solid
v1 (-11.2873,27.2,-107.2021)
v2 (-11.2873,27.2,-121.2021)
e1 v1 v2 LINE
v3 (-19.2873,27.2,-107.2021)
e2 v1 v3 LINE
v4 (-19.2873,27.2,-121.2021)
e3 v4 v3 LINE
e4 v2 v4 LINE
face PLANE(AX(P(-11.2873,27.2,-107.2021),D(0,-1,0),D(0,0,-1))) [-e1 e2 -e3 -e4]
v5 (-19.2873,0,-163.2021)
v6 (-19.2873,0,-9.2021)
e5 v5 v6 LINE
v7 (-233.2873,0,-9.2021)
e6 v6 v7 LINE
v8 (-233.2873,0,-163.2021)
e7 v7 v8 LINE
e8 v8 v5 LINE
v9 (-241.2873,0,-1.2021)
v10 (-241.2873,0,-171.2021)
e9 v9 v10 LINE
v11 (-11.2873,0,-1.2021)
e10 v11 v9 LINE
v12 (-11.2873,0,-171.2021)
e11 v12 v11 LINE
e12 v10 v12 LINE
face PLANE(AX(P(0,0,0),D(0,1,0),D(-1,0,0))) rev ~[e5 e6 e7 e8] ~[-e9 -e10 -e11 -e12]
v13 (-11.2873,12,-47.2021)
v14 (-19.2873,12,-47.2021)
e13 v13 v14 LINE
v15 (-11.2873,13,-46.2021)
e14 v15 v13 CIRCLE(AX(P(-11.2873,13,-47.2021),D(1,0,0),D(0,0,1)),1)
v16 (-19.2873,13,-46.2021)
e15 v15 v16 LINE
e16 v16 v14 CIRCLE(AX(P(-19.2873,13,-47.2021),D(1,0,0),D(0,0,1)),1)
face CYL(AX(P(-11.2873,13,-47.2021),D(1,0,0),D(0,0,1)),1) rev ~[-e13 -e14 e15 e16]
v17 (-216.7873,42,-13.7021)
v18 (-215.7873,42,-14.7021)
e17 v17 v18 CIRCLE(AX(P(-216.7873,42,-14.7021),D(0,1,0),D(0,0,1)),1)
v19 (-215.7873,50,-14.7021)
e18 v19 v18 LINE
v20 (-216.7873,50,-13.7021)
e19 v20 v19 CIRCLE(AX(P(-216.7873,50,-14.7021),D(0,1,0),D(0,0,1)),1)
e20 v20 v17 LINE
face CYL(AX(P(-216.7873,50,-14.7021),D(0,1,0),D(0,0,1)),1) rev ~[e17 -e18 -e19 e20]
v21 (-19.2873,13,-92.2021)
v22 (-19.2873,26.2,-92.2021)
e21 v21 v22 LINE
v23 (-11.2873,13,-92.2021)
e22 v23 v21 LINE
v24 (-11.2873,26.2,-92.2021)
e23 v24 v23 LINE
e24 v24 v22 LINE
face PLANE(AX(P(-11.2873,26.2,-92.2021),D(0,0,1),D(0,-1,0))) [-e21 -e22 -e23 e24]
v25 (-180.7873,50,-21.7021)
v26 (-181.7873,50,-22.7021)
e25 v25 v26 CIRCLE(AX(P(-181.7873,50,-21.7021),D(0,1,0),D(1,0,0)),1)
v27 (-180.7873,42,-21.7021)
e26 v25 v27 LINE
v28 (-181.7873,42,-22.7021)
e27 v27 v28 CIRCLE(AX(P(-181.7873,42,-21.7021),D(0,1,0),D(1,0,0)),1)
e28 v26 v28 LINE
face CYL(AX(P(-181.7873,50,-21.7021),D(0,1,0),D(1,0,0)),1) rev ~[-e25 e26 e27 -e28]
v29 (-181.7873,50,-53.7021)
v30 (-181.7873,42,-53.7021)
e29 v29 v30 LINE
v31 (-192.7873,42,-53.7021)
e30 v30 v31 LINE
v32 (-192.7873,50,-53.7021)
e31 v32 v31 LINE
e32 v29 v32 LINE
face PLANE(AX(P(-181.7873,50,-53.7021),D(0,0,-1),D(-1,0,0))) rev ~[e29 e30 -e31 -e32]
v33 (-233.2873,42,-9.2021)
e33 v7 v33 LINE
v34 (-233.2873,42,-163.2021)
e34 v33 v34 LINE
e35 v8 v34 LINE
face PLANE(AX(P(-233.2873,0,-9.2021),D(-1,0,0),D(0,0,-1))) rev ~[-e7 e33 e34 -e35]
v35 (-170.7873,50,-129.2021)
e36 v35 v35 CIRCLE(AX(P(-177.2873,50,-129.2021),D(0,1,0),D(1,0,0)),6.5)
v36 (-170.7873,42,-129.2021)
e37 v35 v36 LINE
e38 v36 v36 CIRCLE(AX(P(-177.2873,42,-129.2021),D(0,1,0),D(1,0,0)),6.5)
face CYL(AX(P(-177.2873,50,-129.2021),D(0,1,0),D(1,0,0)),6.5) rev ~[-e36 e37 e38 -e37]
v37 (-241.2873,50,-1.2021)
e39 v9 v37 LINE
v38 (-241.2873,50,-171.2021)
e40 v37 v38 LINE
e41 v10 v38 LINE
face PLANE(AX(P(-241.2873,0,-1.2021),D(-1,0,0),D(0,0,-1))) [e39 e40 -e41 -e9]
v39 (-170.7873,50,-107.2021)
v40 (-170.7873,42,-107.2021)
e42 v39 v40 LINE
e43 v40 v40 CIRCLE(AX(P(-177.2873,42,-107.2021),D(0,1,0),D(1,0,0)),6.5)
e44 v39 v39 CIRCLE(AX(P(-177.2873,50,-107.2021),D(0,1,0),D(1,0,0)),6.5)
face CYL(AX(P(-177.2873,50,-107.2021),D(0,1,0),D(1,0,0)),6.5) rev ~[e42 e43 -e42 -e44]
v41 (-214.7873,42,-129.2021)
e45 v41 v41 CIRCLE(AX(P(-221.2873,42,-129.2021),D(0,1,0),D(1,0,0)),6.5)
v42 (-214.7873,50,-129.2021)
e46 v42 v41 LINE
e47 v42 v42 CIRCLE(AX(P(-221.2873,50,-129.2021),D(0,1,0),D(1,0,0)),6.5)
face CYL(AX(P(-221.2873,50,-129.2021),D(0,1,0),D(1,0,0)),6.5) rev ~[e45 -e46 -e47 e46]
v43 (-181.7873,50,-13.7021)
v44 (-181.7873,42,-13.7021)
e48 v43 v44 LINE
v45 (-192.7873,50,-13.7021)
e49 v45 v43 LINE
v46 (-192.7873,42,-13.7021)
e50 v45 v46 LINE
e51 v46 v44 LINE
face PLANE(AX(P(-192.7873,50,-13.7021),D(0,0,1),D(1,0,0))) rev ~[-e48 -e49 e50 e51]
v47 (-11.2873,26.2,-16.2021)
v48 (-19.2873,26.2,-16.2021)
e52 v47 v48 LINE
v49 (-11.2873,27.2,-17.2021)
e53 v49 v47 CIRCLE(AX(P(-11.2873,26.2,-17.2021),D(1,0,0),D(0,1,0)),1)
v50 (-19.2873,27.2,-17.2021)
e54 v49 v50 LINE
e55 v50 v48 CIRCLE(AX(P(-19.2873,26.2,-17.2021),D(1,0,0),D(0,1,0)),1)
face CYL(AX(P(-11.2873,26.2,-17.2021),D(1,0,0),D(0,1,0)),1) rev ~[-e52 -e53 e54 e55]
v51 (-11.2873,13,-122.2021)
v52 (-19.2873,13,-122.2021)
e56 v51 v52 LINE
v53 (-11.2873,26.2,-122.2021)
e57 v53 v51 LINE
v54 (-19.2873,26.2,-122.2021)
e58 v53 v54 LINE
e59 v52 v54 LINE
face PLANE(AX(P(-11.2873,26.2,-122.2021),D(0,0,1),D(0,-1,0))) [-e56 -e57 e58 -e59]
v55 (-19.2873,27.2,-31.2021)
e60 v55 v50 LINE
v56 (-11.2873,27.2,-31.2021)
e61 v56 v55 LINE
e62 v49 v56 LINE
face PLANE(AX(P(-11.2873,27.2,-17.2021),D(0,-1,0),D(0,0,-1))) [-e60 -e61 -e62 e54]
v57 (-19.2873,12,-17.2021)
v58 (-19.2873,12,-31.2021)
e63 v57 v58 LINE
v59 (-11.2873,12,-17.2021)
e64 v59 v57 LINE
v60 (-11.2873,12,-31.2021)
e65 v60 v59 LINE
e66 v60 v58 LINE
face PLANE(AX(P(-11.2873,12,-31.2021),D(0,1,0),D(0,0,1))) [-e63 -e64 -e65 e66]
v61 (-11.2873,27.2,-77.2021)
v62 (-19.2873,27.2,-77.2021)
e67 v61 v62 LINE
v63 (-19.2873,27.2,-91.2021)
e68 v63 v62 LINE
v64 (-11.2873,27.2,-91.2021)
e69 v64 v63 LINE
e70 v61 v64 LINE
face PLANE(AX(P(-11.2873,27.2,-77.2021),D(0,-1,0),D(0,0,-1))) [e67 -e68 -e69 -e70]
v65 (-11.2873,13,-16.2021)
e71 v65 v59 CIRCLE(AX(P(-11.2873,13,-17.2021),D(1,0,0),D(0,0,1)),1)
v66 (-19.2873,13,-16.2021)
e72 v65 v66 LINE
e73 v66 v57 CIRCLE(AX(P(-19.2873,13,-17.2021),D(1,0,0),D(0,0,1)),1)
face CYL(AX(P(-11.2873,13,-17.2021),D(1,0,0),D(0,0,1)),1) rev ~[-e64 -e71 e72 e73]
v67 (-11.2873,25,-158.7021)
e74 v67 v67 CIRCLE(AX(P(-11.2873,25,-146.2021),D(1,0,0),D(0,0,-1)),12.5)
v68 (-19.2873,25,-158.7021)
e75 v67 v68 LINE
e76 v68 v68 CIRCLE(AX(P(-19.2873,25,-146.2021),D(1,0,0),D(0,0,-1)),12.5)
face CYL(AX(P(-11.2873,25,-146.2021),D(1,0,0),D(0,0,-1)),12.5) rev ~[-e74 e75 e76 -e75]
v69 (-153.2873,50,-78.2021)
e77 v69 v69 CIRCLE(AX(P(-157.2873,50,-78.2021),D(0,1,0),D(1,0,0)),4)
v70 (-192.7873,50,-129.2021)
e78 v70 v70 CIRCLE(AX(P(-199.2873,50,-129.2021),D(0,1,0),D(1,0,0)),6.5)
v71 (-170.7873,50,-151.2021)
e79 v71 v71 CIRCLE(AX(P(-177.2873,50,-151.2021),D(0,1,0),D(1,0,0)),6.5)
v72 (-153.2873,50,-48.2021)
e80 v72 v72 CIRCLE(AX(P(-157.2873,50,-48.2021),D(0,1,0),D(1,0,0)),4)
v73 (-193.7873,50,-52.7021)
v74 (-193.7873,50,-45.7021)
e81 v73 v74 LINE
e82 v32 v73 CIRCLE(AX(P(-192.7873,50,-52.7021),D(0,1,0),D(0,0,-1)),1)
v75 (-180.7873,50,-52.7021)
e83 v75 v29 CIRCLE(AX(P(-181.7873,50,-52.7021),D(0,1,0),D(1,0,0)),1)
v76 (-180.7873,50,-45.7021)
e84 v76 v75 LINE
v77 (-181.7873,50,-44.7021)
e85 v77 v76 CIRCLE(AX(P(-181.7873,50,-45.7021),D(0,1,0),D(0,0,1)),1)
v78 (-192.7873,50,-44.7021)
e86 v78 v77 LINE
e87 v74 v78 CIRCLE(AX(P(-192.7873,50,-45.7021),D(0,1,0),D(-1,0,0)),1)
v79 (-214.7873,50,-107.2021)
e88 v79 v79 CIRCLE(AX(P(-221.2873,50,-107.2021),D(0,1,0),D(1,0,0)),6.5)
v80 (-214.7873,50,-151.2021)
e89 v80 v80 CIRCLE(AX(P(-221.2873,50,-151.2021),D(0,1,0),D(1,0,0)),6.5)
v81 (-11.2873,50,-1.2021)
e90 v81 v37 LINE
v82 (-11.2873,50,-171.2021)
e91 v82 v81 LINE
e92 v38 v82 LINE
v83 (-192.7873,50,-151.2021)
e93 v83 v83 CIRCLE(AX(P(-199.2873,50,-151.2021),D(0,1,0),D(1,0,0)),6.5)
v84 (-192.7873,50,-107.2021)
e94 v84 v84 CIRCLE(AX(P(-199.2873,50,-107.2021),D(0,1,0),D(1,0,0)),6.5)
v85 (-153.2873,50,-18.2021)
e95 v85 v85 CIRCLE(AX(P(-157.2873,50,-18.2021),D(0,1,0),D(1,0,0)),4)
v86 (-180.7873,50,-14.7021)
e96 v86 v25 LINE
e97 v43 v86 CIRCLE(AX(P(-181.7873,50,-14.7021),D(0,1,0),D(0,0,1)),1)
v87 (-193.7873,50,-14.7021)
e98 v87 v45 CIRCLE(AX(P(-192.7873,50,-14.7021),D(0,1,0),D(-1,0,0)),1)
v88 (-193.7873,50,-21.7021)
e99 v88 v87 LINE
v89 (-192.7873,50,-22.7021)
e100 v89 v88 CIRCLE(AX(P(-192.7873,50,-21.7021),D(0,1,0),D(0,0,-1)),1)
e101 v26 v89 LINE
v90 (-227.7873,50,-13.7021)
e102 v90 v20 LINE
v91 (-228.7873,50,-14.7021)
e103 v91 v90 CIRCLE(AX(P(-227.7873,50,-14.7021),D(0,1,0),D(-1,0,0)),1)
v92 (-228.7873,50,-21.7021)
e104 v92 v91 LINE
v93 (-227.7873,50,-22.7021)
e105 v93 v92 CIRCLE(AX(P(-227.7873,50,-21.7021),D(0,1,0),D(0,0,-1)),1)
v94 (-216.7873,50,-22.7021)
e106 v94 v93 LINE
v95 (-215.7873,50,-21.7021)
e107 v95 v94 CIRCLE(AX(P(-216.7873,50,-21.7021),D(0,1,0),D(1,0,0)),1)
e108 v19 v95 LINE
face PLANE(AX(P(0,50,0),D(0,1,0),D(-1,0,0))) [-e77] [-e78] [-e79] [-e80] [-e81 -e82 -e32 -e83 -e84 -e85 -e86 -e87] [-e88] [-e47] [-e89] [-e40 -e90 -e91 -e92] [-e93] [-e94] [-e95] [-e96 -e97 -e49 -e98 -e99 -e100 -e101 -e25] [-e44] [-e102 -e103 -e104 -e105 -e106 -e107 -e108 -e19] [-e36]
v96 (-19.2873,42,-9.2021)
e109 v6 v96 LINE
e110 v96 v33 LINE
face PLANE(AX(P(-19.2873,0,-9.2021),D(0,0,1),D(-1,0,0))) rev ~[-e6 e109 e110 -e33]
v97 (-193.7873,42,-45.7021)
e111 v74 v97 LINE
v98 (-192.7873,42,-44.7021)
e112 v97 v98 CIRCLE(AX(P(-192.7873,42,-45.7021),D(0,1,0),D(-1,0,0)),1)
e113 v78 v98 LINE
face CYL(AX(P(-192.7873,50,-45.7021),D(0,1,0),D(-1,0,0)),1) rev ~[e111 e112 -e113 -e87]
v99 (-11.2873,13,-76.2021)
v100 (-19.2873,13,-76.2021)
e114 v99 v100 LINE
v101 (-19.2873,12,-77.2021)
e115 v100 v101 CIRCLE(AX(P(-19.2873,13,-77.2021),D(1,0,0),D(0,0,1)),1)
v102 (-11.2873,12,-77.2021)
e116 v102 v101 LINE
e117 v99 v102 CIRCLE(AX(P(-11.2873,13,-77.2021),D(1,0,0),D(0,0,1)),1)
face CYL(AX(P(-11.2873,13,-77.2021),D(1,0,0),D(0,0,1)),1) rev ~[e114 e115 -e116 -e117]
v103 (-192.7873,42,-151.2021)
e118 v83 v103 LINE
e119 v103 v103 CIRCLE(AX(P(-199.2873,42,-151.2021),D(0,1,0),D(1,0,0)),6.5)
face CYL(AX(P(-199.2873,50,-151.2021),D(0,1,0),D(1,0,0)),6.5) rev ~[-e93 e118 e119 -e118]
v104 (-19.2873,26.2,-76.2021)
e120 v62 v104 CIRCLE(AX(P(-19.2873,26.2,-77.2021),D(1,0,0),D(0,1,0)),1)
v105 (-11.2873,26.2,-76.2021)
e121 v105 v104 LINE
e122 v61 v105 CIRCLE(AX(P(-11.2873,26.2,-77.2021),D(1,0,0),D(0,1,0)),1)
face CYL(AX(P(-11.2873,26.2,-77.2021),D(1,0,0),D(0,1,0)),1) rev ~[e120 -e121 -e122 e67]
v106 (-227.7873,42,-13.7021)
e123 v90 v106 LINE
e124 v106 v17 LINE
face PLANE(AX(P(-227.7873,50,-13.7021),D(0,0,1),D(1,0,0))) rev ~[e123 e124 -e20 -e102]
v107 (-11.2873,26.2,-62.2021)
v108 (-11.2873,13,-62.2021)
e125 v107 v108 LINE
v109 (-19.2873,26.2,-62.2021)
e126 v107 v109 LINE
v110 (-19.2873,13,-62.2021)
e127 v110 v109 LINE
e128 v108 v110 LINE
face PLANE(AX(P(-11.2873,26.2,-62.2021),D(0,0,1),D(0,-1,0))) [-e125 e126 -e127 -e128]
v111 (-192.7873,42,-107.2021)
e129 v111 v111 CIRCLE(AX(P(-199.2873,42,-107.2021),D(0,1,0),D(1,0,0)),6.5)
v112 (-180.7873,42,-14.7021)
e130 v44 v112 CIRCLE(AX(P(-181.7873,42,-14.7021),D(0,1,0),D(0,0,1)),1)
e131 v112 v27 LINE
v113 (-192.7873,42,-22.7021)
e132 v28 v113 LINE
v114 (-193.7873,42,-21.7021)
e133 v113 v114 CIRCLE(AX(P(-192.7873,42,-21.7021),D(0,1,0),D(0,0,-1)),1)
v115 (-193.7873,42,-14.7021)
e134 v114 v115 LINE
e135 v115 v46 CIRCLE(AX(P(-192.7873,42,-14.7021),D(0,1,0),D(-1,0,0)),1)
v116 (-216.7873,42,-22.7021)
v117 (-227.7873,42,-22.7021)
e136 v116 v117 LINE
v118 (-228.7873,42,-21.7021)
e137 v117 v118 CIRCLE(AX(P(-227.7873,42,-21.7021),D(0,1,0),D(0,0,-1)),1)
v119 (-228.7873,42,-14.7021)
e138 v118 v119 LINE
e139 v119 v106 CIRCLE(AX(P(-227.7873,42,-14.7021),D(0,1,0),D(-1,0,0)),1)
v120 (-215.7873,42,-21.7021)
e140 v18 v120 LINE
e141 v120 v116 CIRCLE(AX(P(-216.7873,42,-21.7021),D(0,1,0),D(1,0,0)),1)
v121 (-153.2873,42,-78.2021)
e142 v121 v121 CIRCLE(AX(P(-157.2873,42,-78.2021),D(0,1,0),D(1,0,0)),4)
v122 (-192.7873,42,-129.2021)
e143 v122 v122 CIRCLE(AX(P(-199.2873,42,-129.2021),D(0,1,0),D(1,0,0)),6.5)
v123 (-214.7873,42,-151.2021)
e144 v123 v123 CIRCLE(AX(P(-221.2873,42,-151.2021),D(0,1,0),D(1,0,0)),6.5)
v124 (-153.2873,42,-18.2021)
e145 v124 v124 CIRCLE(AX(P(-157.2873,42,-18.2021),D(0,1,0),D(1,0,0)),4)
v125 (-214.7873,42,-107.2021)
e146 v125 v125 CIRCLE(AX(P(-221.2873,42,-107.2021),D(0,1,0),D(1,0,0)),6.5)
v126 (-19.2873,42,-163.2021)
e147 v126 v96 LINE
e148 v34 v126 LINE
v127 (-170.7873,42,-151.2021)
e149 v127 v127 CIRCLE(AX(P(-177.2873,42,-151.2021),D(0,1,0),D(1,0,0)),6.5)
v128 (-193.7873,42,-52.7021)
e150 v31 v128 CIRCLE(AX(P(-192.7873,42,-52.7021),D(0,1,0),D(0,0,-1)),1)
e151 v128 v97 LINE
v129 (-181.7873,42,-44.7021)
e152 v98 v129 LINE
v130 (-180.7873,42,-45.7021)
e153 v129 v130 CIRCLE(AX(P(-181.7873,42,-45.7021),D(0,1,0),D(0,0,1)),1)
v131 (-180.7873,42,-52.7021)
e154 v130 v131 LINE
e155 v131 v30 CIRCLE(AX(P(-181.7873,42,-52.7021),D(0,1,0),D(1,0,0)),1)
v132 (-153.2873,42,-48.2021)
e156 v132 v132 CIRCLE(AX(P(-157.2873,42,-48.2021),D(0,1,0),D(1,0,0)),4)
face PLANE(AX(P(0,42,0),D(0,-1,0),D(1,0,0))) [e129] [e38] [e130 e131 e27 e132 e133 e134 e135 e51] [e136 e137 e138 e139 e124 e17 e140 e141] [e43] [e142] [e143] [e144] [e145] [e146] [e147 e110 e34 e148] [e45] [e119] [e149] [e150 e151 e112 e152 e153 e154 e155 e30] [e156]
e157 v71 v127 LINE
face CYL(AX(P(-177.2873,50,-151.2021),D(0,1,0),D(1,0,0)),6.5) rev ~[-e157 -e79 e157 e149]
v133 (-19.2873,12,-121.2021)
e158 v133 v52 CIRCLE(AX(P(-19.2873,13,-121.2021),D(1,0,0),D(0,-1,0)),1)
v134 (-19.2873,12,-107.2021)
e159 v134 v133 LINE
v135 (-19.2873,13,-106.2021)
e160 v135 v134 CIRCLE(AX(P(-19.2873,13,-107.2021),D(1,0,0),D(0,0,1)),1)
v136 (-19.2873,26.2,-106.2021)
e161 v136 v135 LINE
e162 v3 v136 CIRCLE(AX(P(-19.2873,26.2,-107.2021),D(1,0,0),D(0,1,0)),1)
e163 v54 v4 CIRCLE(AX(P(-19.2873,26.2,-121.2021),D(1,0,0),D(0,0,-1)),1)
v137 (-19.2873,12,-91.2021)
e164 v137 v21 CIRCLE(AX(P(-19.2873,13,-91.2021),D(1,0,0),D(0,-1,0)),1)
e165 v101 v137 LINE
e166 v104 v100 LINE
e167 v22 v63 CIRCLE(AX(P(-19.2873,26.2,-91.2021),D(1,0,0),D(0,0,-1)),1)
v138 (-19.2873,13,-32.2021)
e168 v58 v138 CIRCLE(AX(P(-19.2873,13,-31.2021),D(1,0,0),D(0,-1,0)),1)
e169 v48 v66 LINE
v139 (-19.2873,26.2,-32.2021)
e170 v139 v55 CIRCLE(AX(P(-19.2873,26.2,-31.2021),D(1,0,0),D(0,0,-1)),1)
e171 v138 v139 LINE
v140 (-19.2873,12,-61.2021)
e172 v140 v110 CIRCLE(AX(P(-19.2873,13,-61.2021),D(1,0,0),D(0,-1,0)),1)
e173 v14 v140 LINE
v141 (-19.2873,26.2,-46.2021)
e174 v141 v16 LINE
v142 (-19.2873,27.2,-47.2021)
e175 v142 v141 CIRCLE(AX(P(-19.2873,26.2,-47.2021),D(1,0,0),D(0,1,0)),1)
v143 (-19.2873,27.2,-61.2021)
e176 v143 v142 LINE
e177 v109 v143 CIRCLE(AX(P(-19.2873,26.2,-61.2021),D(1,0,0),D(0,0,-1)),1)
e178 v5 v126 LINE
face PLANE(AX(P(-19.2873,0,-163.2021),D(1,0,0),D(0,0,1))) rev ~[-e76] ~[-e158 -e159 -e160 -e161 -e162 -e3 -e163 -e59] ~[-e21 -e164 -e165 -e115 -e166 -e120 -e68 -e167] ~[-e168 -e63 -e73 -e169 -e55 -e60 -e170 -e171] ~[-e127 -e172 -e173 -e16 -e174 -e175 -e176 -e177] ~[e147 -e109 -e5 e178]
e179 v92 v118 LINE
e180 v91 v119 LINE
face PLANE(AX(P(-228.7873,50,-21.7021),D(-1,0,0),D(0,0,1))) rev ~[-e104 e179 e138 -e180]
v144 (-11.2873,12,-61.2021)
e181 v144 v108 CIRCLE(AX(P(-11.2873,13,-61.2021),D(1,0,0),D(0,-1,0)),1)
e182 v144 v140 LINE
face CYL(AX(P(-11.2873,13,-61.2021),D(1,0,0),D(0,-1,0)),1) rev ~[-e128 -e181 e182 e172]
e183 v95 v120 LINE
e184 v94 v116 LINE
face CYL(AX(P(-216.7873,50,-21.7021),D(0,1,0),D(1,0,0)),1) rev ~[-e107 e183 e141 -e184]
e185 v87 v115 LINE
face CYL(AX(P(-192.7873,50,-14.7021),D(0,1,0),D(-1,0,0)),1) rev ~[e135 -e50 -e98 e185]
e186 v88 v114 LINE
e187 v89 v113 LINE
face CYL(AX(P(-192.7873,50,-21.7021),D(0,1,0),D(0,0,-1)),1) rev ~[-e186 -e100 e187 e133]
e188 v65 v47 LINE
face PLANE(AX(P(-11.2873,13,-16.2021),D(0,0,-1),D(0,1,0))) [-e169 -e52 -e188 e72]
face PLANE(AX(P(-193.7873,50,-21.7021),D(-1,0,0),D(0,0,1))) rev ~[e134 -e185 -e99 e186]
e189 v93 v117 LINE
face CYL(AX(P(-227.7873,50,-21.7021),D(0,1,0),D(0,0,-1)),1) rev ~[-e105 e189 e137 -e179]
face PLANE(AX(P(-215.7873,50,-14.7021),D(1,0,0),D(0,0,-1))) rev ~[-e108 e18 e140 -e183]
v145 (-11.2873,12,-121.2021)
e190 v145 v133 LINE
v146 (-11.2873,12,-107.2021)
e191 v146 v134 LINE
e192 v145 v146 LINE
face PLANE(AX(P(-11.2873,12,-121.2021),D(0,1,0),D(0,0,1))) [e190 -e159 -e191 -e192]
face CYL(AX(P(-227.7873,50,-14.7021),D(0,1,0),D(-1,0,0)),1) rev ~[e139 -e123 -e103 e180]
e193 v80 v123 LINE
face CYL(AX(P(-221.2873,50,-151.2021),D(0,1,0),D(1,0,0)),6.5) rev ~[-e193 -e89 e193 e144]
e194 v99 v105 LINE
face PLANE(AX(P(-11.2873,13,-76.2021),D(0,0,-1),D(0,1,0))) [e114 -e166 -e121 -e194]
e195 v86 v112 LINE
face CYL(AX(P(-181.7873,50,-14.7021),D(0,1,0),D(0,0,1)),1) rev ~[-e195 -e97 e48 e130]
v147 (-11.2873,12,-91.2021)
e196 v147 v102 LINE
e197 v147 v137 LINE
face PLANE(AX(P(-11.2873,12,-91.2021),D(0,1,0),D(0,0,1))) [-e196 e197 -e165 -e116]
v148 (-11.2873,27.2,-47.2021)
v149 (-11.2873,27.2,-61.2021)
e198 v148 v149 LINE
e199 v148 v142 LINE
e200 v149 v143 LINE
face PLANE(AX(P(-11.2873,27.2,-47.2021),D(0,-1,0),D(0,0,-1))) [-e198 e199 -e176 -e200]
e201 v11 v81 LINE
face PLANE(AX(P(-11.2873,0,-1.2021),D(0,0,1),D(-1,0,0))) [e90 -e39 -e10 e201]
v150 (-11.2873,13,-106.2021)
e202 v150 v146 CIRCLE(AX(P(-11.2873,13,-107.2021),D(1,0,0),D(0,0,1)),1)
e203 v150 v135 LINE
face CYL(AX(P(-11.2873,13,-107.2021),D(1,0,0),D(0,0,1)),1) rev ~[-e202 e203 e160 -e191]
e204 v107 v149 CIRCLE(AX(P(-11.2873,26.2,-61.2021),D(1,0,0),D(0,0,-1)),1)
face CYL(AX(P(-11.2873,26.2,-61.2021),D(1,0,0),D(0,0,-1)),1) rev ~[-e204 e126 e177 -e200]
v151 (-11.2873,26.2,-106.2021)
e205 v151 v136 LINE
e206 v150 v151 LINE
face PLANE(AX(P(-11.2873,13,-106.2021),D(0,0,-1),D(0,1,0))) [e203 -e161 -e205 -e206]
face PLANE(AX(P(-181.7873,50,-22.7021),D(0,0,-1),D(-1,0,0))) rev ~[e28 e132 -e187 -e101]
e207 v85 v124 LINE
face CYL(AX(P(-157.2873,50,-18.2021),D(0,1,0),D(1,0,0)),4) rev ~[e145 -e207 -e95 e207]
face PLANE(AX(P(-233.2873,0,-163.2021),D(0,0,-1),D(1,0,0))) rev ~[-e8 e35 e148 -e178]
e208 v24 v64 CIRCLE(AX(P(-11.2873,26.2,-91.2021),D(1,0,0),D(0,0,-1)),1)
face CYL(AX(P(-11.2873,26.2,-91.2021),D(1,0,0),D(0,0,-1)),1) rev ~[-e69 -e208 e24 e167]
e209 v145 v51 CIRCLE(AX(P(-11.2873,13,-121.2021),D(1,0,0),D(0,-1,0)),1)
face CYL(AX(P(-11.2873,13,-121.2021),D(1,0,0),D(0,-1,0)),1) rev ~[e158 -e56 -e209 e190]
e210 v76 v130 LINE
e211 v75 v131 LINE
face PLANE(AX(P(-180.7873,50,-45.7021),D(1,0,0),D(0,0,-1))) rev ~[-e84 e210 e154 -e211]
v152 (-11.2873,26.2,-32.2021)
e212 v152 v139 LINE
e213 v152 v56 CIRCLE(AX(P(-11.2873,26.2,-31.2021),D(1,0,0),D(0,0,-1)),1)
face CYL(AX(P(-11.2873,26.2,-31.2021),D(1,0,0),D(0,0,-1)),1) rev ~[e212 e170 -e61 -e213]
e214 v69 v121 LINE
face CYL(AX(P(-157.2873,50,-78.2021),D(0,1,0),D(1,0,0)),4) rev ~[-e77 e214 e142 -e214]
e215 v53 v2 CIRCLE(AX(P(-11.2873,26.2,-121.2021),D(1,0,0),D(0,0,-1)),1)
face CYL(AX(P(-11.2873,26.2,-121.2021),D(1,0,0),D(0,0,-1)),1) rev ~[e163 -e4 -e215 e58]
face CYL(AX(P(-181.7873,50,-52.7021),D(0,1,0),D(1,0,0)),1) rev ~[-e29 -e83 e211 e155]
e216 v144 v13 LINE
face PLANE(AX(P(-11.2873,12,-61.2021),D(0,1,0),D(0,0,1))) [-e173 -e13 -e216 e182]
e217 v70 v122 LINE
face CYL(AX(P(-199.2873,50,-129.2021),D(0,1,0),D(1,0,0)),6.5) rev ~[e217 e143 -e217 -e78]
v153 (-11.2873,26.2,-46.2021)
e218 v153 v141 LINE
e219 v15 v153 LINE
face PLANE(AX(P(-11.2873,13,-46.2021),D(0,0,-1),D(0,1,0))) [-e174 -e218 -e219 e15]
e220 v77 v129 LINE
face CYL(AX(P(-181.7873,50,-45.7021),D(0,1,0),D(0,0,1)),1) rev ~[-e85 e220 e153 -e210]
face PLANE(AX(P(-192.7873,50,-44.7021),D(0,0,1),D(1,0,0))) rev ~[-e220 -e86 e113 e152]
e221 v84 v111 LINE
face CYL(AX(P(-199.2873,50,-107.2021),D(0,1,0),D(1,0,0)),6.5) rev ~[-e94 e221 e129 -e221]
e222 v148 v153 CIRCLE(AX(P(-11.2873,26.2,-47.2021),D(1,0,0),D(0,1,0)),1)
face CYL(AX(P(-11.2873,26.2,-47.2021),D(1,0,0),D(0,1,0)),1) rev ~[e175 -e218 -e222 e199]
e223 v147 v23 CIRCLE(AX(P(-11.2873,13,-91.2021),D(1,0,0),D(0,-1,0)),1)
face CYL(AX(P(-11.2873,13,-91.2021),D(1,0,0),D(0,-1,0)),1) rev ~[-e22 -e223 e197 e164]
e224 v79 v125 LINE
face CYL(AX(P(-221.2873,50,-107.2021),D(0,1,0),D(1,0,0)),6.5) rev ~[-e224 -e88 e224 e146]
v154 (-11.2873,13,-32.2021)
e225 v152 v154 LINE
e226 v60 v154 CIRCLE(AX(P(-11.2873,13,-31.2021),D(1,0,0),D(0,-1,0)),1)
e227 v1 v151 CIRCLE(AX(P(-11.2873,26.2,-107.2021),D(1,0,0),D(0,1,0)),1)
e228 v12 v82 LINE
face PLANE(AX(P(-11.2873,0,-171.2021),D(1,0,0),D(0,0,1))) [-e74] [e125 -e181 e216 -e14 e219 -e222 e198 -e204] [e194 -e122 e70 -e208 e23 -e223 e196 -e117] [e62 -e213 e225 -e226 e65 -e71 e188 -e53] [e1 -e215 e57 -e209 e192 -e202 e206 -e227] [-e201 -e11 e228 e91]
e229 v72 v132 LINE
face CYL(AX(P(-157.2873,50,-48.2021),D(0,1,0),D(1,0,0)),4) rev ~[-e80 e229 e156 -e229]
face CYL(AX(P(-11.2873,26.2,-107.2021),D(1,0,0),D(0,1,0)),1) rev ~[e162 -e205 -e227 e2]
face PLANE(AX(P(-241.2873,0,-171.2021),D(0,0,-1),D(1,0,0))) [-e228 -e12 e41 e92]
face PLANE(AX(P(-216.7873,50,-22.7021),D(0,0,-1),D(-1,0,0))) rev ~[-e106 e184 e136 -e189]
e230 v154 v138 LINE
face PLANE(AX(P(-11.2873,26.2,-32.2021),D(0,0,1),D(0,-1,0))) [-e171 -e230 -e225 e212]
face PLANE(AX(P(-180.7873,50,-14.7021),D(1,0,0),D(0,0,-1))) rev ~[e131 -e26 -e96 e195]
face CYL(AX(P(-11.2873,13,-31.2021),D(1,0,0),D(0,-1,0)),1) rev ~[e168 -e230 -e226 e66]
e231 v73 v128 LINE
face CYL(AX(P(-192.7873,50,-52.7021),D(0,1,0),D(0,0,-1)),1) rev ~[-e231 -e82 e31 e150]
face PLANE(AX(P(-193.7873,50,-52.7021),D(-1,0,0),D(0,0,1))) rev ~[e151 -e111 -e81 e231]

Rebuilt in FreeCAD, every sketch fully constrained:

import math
import FreeCAD as App
import Part
import Sketcher
from FreeCAD import Vector
Q = App.Units.Quantity

doc = App.newDocument("Part")
body = doc.addObject("PartDesign::Body", "Body")

sketch1 = body.newObject("Sketcher::SketchObject", "Sketch")
sketch1.AttachmentSupport = (doc.getObject("XZ_Plane"), [""])
sketch1.MapMode = "FlatFace"
sketch1.addGeometry([
    Part.LineSegment(Vector(-241.2873, -1.2021, 0), Vector(-11.2873, -1.2021, 0)),
    Part.LineSegment(Vector(-11.2873, -1.2021, 0), Vector(-11.2873, -171.2021, 0)),
    Part.LineSegment(Vector(-11.2873, -171.2021, 0), Vector(-241.2873, -171.2021, 0)),
    Part.LineSegment(Vector(-241.2873, -171.2021, 0), Vector(-241.2873, -1.2021, 0)),
], False)
sketch1.addConstraint([
    Sketcher.Constraint("Coincident", 0, 2, 1, 1),
    Sketcher.Constraint("Coincident", 1, 2, 2, 1),
    Sketcher.Constraint("Coincident", 2, 2, 3, 1),
    Sketcher.Constraint("Coincident", 3, 2, 0, 1),
    Sketcher.Constraint("Horizontal", 0),
    Sketcher.Constraint("Vertical", 1),
    Sketcher.Constraint("Horizontal", 2),
    Sketcher.Constraint("Vertical", 3),
    Sketcher.Constraint("DistanceX", 0, 1, 0, 2, Q("230 mm")),
    Sketcher.Constraint("DistanceY", 1, 2, 1, 1, Q("170 mm")),
    Sketcher.Constraint("DistanceY", 0, 2, -1, 1, Q("1.202 mm")),
    Sketcher.Constraint("DistanceX", 0, 2, -1, 1, Q("11.2873 mm")),
])
pad1 = body.newObject("PartDesign::Pad", "Pad")
pad1.Profile = sketch1
pad1.Length = 50
pad1.Reversed = True

sketch2 = body.newObject("Sketcher::SketchObject", "Sketch001")
sketch2.AttachmentSupport = (doc.getObject("YZ_Plane"), [""])
sketch2.MapMode = "FlatFace"
sketch2.AttachmentOffset = App.Placement(Vector(0, 0, -11.2873), App.Rotation())
sketch2.addGeometry([
    Part.LineSegment(Vector(27.2, -31.2021, 0), Vector(27.2, -17.2021, 0)),
    Part.ArcOfCircle(Part.Circle(Vector(26.2, -17.2021, 0), Vector(0, 0, 1), 1), math.radians(0), math.radians(90)),
    Part.LineSegment(Vector(26.2, -16.2021, 0), Vector(13, -16.2021, 0)),
    Part.ArcOfCircle(Part.Circle(Vector(13, -17.2021, 0), Vector(0, 0, 1), 1), math.radians(90), math.radians(180)),
    Part.LineSegment(Vector(12, -17.2021, 0), Vector(12, -31.2021, 0)),
    Part.ArcOfCircle(Part.Circle(Vector(13, -31.2021, 0), Vector(0, 0, 1), 1), math.radians(180), math.radians(270)),
    Part.LineSegment(Vector(13, -32.2021, 0), Vector(26.2, -32.2021, 0)),
    Part.ArcOfCircle(Part.Circle(Vector(26.2, -31.2021, 0), Vector(0, 0, 1), 1), math.radians(-90), math.radians(0)),
    Part.LineSegment(Vector(27.2, -61.2021, 0), Vector(27.2, -47.2021, 0)),
    Part.ArcOfCircle(Part.Circle(Vector(26.2, -47.2021, 0), Vector(0, 0, 1), 1), math.radians(0), math.radians(90)),
    Part.LineSegment(Vector(26.2, -46.2021, 0), Vector(13, -46.2021, 0)),
    Part.ArcOfCircle(Part.Circle(Vector(13, -47.2021, 0), Vector(0, 0, 1), 1), math.radians(90), math.radians(180)),
    Part.LineSegment(Vector(12, -47.2021, 0), Vector(12, -61.2021, 0)),
    Part.ArcOfCircle(Part.Circle(Vector(13, -61.2021, 0), Vector(0, 0, 1), 1), math.radians(180), math.radians(270)),
    Part.LineSegment(Vector(13, -62.2021, 0), Vector(26.2, -62.2021, 0)),
    Part.ArcOfCircle(Part.Circle(Vector(26.2, -61.2021, 0), Vector(0, 0, 1), 1), math.radians(-90), math.radians(0)),
    Part.LineSegment(Vector(27.2, -91.2021, 0), Vector(27.2, -77.2021, 0)),
    Part.ArcOfCircle(Part.Circle(Vector(26.2, -77.2021, 0), Vector(0, 0, 1), 1), math.radians(0), math.radians(90)),
    Part.LineSegment(Vector(26.2, -76.2021, 0), Vector(13, -76.2021, 0)),
    Part.ArcOfCircle(Part.Circle(Vector(13, -77.2021, 0), Vector(0, 0, 1), 1), math.radians(90), math.radians(180)),
    Part.LineSegment(Vector(12, -77.2021, 0), Vector(12, -91.2021, 0)),
    Part.ArcOfCircle(Part.Circle(Vector(13, -91.2021, 0), Vector(0, 0, 1), 1), math.radians(180), math.radians(270)),
    Part.LineSegment(Vector(13, -92.2021, 0), Vector(26.2, -92.2021, 0)),
    Part.ArcOfCircle(Part.Circle(Vector(26.2, -91.2021, 0), Vector(0, 0, 1), 1), math.radians(-90), math.radians(0)),
    Part.LineSegment(Vector(27.2, -121.2021, 0), Vector(27.2, -107.2021, 0)),
    Part.ArcOfCircle(Part.Circle(Vector(26.2, -107.2021, 0), Vector(0, 0, 1), 1), math.radians(0), math.radians(90)),
    Part.LineSegment(Vector(26.2, -106.2021, 0), Vector(13, -106.2021, 0)),
    Part.ArcOfCircle(Part.Circle(Vector(13, -107.2021, 0), Vector(0, 0, 1), 1), math.radians(90), math.radians(180)),
    Part.LineSegment(Vector(12, -107.2021, 0), Vector(12, -121.2021, 0)),
    Part.ArcOfCircle(Part.Circle(Vector(13, -121.2021, 0), Vector(0, 0, 1), 1), math.radians(180), math.radians(270)),
    Part.LineSegment(Vector(13, -122.2021, 0), Vector(26.2, -122.2021, 0)),
    Part.ArcOfCircle(Part.Circle(Vector(26.2, -121.2021, 0), Vector(0, 0, 1), 1), math.radians(-90), math.radians(0)),
], False)
sketch2.addConstraint([
    Sketcher.Constraint("Tangent", 0, 2, 1, 1),
    Sketcher.Constraint("Tangent", 1, 2, 2, 1),
    Sketcher.Constraint("Tangent", 2, 2, 3, 1),
    Sketcher.Constraint("Tangent", 3, 2, 4, 1),
    Sketcher.Constraint("Tangent", 4, 2, 5, 1),
    Sketcher.Constraint("Tangent", 5, 2, 6, 1),
    Sketcher.Constraint("Tangent", 6, 2, 7, 1),
    Sketcher.Constraint("Tangent", 7, 2, 0, 1),
    Sketcher.Constraint("Tangent", 8, 2, 9, 1),
    Sketcher.Constraint("Tangent", 9, 2, 10, 1),
    Sketcher.Constraint("Tangent", 10, 2, 11, 1),
    Sketcher.Constraint("Tangent", 11, 2, 12, 1),
    Sketcher.Constraint("Tangent", 12, 2, 13, 1),
    Sketcher.Constraint("Tangent", 13, 2, 14, 1),
    Sketcher.Constraint("Tangent", 14, 2, 15, 1),
    Sketcher.Constraint("Tangent", 15, 2, 8, 1),
    Sketcher.Constraint("Tangent", 16, 2, 17, 1),
    Sketcher.Constraint("Tangent", 17, 2, 18, 1),
    Sketcher.Constraint("Tangent", 18, 2, 19, 1),
    Sketcher.Constraint("Tangent", 19, 2, 20, 1),
    Sketcher.Constraint("Tangent", 20, 2, 21, 1),
    Sketcher.Constraint("Tangent", 21, 2, 22, 1),
    Sketcher.Constraint("Tangent", 22, 2, 23, 1),
    Sketcher.Constraint("Tangent", 23, 2, 16, 1),
    Sketcher.Constraint("Tangent", 24, 2, 25, 1),
    Sketcher.Constraint("Tangent", 25, 2, 26, 1),
    Sketcher.Constraint("Tangent", 26, 2, 27, 1),
    Sketcher.Constraint("Tangent", 27, 2, 28, 1),
    Sketcher.Constraint("Tangent", 28, 2, 29, 1),
    Sketcher.Constraint("Tangent", 29, 2, 30, 1),
    Sketcher.Constraint("Tangent", 30, 2, 31, 1),
    Sketcher.Constraint("Tangent", 31, 2, 24, 1),
    Sketcher.Constraint("Vertical", 0),
    Sketcher.Constraint("Horizontal", 2),
    Sketcher.Constraint("Vertical", 4),
    Sketcher.Constraint("Horizontal", 6),
    Sketcher.Constraint("Vertical", 8),
    Sketcher.Constraint("Horizontal", 10),
    Sketcher.Constraint("Vertical", 12),
    Sketcher.Constraint("Horizontal", 14),
    Sketcher.Constraint("Vertical", 16),
    Sketcher.Constraint("Horizontal", 18),
    Sketcher.Constraint("Vertical", 20),
    Sketcher.Constraint("Horizontal", 22),
    Sketcher.Constraint("Vertical", 24),
    Sketcher.Constraint("Horizontal", 26),
    Sketcher.Constraint("Vertical", 28),
    Sketcher.Constraint("Horizontal", 30),
    Sketcher.Constraint("Equal", 1, 3),
    Sketcher.Constraint("Equal", 3, 5),
    Sketcher.Constraint("Equal", 5, 7),
    Sketcher.Constraint("Equal", 7, 9),
    Sketcher.Constraint("Equal", 9, 11),
    Sketcher.Constraint("Equal", 11, 13),
    Sketcher.Constraint("Equal", 13, 15),
    Sketcher.Constraint("Equal", 15, 17),
    Sketcher.Constraint("Equal", 17, 19),
    Sketcher.Constraint("Equal", 19, 21),
    Sketcher.Constraint("Equal", 21, 23),
    Sketcher.Constraint("Equal", 23, 25),
    Sketcher.Constraint("Equal", 25, 27),
    Sketcher.Constraint("Equal", 27, 29),
    Sketcher.Constraint("Equal", 29, 31),
    Sketcher.Constraint("Vertical", 7, 3, 9, 3),
    Sketcher.Constraint("Vertical", 5, 3, 11, 3),
    Sketcher.Constraint("Vertical", 15, 3, 17, 3),
    Sketcher.Constraint("Vertical", 13, 3, 19, 3),
    Sketcher.Constraint("Vertical", 23, 3, 25, 3),
    Sketcher.Constraint("Vertical", 21, 3, 27, 3),
    Sketcher.Constraint("Equal", 4, 8),
    Sketcher.Constraint("Equal", 12, 16),
    Sketcher.Constraint("Equal", 20, 24),
    Sketcher.Constraint("Radius", 1, Q("1 mm")),
    Sketcher.Constraint("DistanceX", -1, 1, 3, 2, Q("12 mm")),
    Sketcher.Constraint("DistanceY", 9, 3, 7, 3, Q("16 mm")),
    Sketcher.Constraint("DistanceY", 17, 3, 15, 3, Q("16 mm")),
    Sketcher.Constraint("DistanceY", 25, 3, 23, 3, Q("16 mm")),
    Sketcher.Constraint("DistanceY", 7, 3, 1, 2, Q("15 mm")),
    Sketcher.Constraint("DistanceX", 2, 2, 2, 1, Q("13.2 mm")),
    Sketcher.Constraint("DistanceY", 1, 3, -1, 1, Q("17.202 mm")),
])
pocket1 = body.newObject("PartDesign::Pocket", "Pocket")
pocket1.Profile = sketch2
pocket1.Length = 20

sketch3 = body.newObject("Sketcher::SketchObject", "Sketch002")
sketch3.AttachmentSupport = (doc.getObject("XZ_Plane"), [""])
sketch3.MapMode = "FlatFace"
sketch3.AttachmentOffset = App.Placement(Vector(0, 0, -50), App.Rotation())
sketch3.addGeometry([
    Part.ArcOfCircle(Part.Circle(Vector(-216.7873, -21.7021, 0), Vector(0, 0, 1), 1), math.radians(-90), math.radians(0)),
    Part.LineSegment(Vector(-216.7873, -22.7021, 0), Vector(-227.7873, -22.7021, 0)),
    Part.ArcOfCircle(Part.Circle(Vector(-227.7873, -21.7021, 0), Vector(0, 0, 1), 1), math.radians(180), math.radians(270)),
    Part.LineSegment(Vector(-228.7873, -21.7021, 0), Vector(-228.7873, -14.7021, 0)),
    Part.ArcOfCircle(Part.Circle(Vector(-227.7873, -14.7021, 0), Vector(0, 0, 1), 1), math.radians(90), math.radians(180)),
    Part.LineSegment(Vector(-227.7873, -13.7021, 0), Vector(-216.7873, -13.7021, 0)),
    Part.ArcOfCircle(Part.Circle(Vector(-216.7873, -14.7021, 0), Vector(0, 0, 1), 1), math.radians(0), math.radians(90)),
    Part.LineSegment(Vector(-215.7873, -14.7021, 0), Vector(-215.7873, -21.7021, 0)),
], False)
sketch3.addConstraint([
    Sketcher.Constraint("Tangent", 0, 1, 1, 1),
    Sketcher.Constraint("Tangent", 1, 2, 2, 2),
    Sketcher.Constraint("Tangent", 2, 1, 3, 1),
    Sketcher.Constraint("Tangent", 3, 2, 4, 2),
    Sketcher.Constraint("Tangent", 4, 1, 5, 1),
    Sketcher.Constraint("Tangent", 5, 2, 6, 2),
    Sketcher.Constraint("Tangent", 6, 1, 7, 1),
    Sketcher.Constraint("Tangent", 7, 2, 0, 2),
    Sketcher.Constraint("Horizontal", 1),
    Sketcher.Constraint("Vertical", 3),
    Sketcher.Constraint("Horizontal", 5),
    Sketcher.Constraint("Vertical", 7),
    Sketcher.Constraint("Equal", 0, 2),
    Sketcher.Constraint("Equal", 2, 4),
    Sketcher.Constraint("Equal", 4, 6),
    Sketcher.Constraint("Radius", 0, Q("1 mm")),
    Sketcher.Constraint("DistanceY", 1, 2, 4, 1, Q("9 mm")),
    Sketcher.Constraint("DistanceX", 1, 2, 1, 1, Q("11 mm")),
    Sketcher.Constraint("DistanceY", 0, 3, -1, 1, Q("21.702 mm")),
    Sketcher.Constraint("DistanceX", 0, 3, -1, 1, Q("216.7873 mm")),
])
pocket2 = body.newObject("PartDesign::Pocket", "Pocket001")
pocket2.Profile = sketch3
pocket2.Length = 20
pocket2.Reversed = True

sketch4 = body.newObject("Sketcher::SketchObject", "Sketch003")
sketch4.AttachmentSupport = (doc.getObject("XZ_Plane"), [""])
sketch4.MapMode = "FlatFace"
sketch4.AttachmentOffset = App.Placement(Vector(0, 0, -50), App.Rotation())
sketch4.addGeometry([
    Part.ArcOfCircle(Part.Circle(Vector(-181.7873, -21.7021, 0), Vector(0, 0, 1), 1), math.radians(-90), math.radians(0)),
    Part.LineSegment(Vector(-181.7873, -22.7021, 0), Vector(-192.7873, -22.7021, 0)),
    Part.ArcOfCircle(Part.Circle(Vector(-192.7873, -21.7021, 0), Vector(0, 0, 1), 1), math.radians(180), math.radians(270)),
    Part.LineSegment(Vector(-193.7873, -21.7021, 0), Vector(-193.7873, -14.7021, 0)),
    Part.ArcOfCircle(Part.Circle(Vector(-192.7873, -14.7021, 0), Vector(0, 0, 1), 1), math.radians(90), math.radians(180)),
    Part.LineSegment(Vector(-192.7873, -13.7021, 0), Vector(-181.7873, -13.7021, 0)),
    Part.ArcOfCircle(Part.Circle(Vector(-181.7873, -14.7021, 0), Vector(0, 0, 1), 1), math.radians(0), math.radians(90)),
    Part.LineSegment(Vector(-180.7873, -14.7021, 0), Vector(-180.7873, -21.7021, 0)),
], False)
sketch4.addConstraint([
    Sketcher.Constraint("Tangent", 0, 1, 1, 1),
    Sketcher.Constraint("Tangent", 1, 2, 2, 2),
    Sketcher.Constraint("Tangent", 2, 1, 3, 1),
    Sketcher.Constraint("Tangent", 3, 2, 4, 2),
    Sketcher.Constraint("Tangent", 4, 1, 5, 1),
    Sketcher.Constraint("Tangent", 5, 2, 6, 2),
    Sketcher.Constraint("Tangent", 6, 1, 7, 1),
    Sketcher.Constraint("Tangent", 7, 2, 0, 2),
    Sketcher.Constraint("Horizontal", 1),
    Sketcher.Constraint("Vertical", 3),
    Sketcher.Constraint("Horizontal", 5),
    Sketcher.Constraint("Vertical", 7),
    Sketcher.Constraint("Equal", 0, 2),
    Sketcher.Constraint("Equal", 2, 4),
    Sketcher.Constraint("Equal", 4, 6),
    Sketcher.Constraint("Radius", 0, Q("1 mm")),
    Sketcher.Constraint("DistanceY", 1, 2, 4, 1, Q("9 mm")),
    Sketcher.Constraint("DistanceX", 1, 2, 1, 1, Q("11 mm")),
    Sketcher.Constraint("DistanceY", 0, 3, -1, 1, Q("21.702 mm")),
    Sketcher.Constraint("DistanceX", 0, 3, -1, 1, Q("181.7873 mm")),
])
pocket3 = body.newObject("PartDesign::Pocket", "Pocket002")
pocket3.Profile = sketch4
pocket3.Length = 20
pocket3.Reversed = True

sketch5 = body.newObject("Sketcher::SketchObject", "Sketch004")
sketch5.AttachmentSupport = (doc.getObject("XZ_Plane"), [""])
sketch5.MapMode = "FlatFace"
sketch5.AttachmentOffset = App.Placement(Vector(0, 0, -50), App.Rotation())
sketch5.addGeometry([
    Part.ArcOfCircle(Part.Circle(Vector(-192.7873, -45.7021, 0), Vector(0, 0, 1), 1), math.radians(90), math.radians(180)),
    Part.LineSegment(Vector(-192.7873, -44.7021, 0), Vector(-181.7873, -44.7021, 0)),
    Part.ArcOfCircle(Part.Circle(Vector(-181.7873, -45.7021, 0), Vector(0, 0, 1), 1), math.radians(0), math.radians(90)),
    Part.LineSegment(Vector(-180.7873, -45.7021, 0), Vector(-180.7873, -52.7021, 0)),
    Part.ArcOfCircle(Part.Circle(Vector(-181.7873, -52.7021, 0), Vector(0, 0, 1), 1), math.radians(-90), math.radians(0)),
    Part.LineSegment(Vector(-181.7873, -53.7021, 0), Vector(-192.7873, -53.7021, 0)),
    Part.ArcOfCircle(Part.Circle(Vector(-192.7873, -52.7021, 0), Vector(0, 0, 1), 1), math.radians(180), math.radians(270)),
    Part.LineSegment(Vector(-193.7873, -52.7021, 0), Vector(-193.7873, -45.7021, 0)),
], False)
sketch5.addConstraint([
    Sketcher.Constraint("Tangent", 0, 1, 1, 1),
    Sketcher.Constraint("Tangent", 1, 2, 2, 2),
    Sketcher.Constraint("Tangent", 2, 1, 3, 1),
    Sketcher.Constraint("Tangent", 3, 2, 4, 2),
    Sketcher.Constraint("Tangent", 4, 1, 5, 1),
    Sketcher.Constraint("Tangent", 5, 2, 6, 2),
    Sketcher.Constraint("Tangent", 6, 1, 7, 1),
    Sketcher.Constraint("Tangent", 7, 2, 0, 2),
    Sketcher.Constraint("Horizontal", 1),
    Sketcher.Constraint("Vertical", 3),
    Sketcher.Constraint("Horizontal", 5),
    Sketcher.Constraint("Vertical", 7),
    Sketcher.Constraint("Equal", 0, 2),
    Sketcher.Constraint("Equal", 2, 4),
    Sketcher.Constraint("Equal", 4, 6),
    Sketcher.Constraint("Radius", 0, Q("1 mm")),
    Sketcher.Constraint("DistanceY", 4, 1, 1, 2, Q("9 mm")),
    Sketcher.Constraint("DistanceX", 1, 1, 1, 2, Q("11 mm")),
    Sketcher.Constraint("DistanceY", 0, 3, -1, 1, Q("45.702 mm")),
    Sketcher.Constraint("DistanceX", 0, 3, -1, 1, Q("192.7873 mm")),
])
pocket4 = body.newObject("PartDesign::Pocket", "Pocket003")
pocket4.Profile = sketch5
pocket4.Length = 20
pocket4.Reversed = True

sketch6 = body.newObject("Sketcher::SketchObject", "Sketch005")
sketch6.AttachmentSupport = (doc.getObject("XZ_Plane"), [""])
sketch6.MapMode = "FlatFace"
sketch6.AttachmentOffset = App.Placement(Vector(0, 0, -50), App.Rotation())
sketch6.addGeometry([
    Part.Circle(Vector(-157.2873, -18.2021, 0), Vector(0, 0, 1), 4),
    Part.Circle(Vector(-157.2873, -48.2021, 0), Vector(0, 0, 1), 4),
    Part.Circle(Vector(-157.2873, -78.2021, 0), Vector(0, 0, 1), 4),
], False)
sketch6.addConstraint([
    Sketcher.Constraint("Equal", 0, 1),
    Sketcher.Constraint("Equal", 1, 2),
    Sketcher.Constraint("Vertical", 0, 3, 1, 3),
    Sketcher.Constraint("Vertical", 1, 3, 2, 3),
    Sketcher.Constraint("Diameter", 0, Q("8 mm")),
    Sketcher.Constraint("DistanceY", 1, 3, 0, 3, Q("30 mm")),
    Sketcher.Constraint("DistanceY", 2, 3, 1, 3, Q("30 mm")),
    Sketcher.Constraint("DistanceY", 0, 3, -1, 1, Q("18.202 mm")),
    Sketcher.Constraint("DistanceX", 0, 3, -1, 1, Q("157.2873 mm")),
])
pocket5 = body.newObject("PartDesign::Pocket", "Pocket004")
pocket5.Profile = sketch6
pocket5.Length = 20
pocket5.Reversed = True

sketch7 = body.newObject("Sketcher::SketchObject", "Sketch006")
sketch7.AttachmentSupport = (doc.getObject("XZ_Plane"), [""])
sketch7.MapMode = "FlatFace"
sketch7.AttachmentOffset = App.Placement(Vector(0, 0, -50), App.Rotation())
sketch7.addGeometry([
    Part.Circle(Vector(-221.2873, -107.2021, 0), Vector(0, 0, 1), 6.5),
    Part.Circle(Vector(-221.2873, -129.2021, 0), Vector(0, 0, 1), 6.5),
    Part.Circle(Vector(-221.2873, -151.2021, 0), Vector(0, 0, 1), 6.5),
    Part.Circle(Vector(-199.2873, -151.2021, 0), Vector(0, 0, 1), 6.5),
    Part.Circle(Vector(-199.2873, -129.2021, 0), Vector(0, 0, 1), 6.5),
    Part.Circle(Vector(-199.2873, -107.2021, 0), Vector(0, 0, 1), 6.5),
    Part.Circle(Vector(-177.2873, -151.2021, 0), Vector(0, 0, 1), 6.5),
    Part.Circle(Vector(-177.2873, -129.2021, 0), Vector(0, 0, 1), 6.5),
    Part.Circle(Vector(-177.2873, -107.2021, 0), Vector(0, 0, 1), 6.5),
], False)
sketch7.addConstraint([
    Sketcher.Constraint("Equal", 0, 1),
    Sketcher.Constraint("Equal", 1, 2),
    Sketcher.Constraint("Equal", 2, 3),
    Sketcher.Constraint("Equal", 3, 4),
    Sketcher.Constraint("Equal", 4, 5),
    Sketcher.Constraint("Equal", 5, 6),
    Sketcher.Constraint("Equal", 6, 7),
    Sketcher.Constraint("Equal", 7, 8),
    Sketcher.Constraint("Horizontal", 2, 3, 3, 3),
    Sketcher.Constraint("Horizontal", 1, 3, 4, 3),
    Sketcher.Constraint("Horizontal", 0, 3, 5, 3),
    Sketcher.Constraint("Horizontal", 3, 3, 6, 3),
    Sketcher.Constraint("Horizontal", 4, 3, 7, 3),
    Sketcher.Constraint("Horizontal", 5, 3, 8, 3),
    Sketcher.Constraint("Vertical", 0, 3, 1, 3),
    Sketcher.Constraint("Vertical", 1, 3, 2, 3),
    Sketcher.Constraint("Vertical", 3, 3, 4, 3),
    Sketcher.Constraint("Vertical", 4, 3, 5, 3),
    Sketcher.Constraint("Vertical", 6, 3, 7, 3),
    Sketcher.Constraint("Vertical", 7, 3, 8, 3),
    Sketcher.Constraint("Diameter", 0, Q("13 mm")),
    Sketcher.Constraint("DistanceY", 1, 3, 0, 3, Q("22 mm")),
    Sketcher.Constraint("DistanceY", 2, 3, 1, 3, Q("22 mm")),
    Sketcher.Constraint("DistanceX", 2, 3, 3, 3, Q("22 mm")),
    Sketcher.Constraint("DistanceX", 3, 3, 6, 3, Q("22 mm")),
    Sketcher.Constraint("DistanceY", 0, 3, -1, 1, Q("107.202 mm")),
    Sketcher.Constraint("DistanceX", 0, 3, -1, 1, Q("221.2873 mm")),
])
pocket6 = body.newObject("PartDesign::Pocket", "Pocket005")
pocket6.Profile = sketch7
pocket6.Length = 20
pocket6.Reversed = True

sketch8 = body.newObject("Sketcher::SketchObject", "Sketch007")
sketch8.AttachmentSupport = (doc.getObject("XZ_Plane"), [""])
sketch8.MapMode = "FlatFace"
sketch8.addGeometry([
    Part.LineSegment(Vector(-19.2873, -163.2021, 0), Vector(-19.2873, -9.2021, 0)),
    Part.LineSegment(Vector(-19.2873, -9.2021, 0), Vector(-233.2873, -9.2021, 0)),
    Part.LineSegment(Vector(-233.2873, -9.2021, 0), Vector(-233.2873, -163.2021, 0)),
    Part.LineSegment(Vector(-233.2873, -163.2021, 0), Vector(-19.2873, -163.2021, 0)),
], False)
sketch8.addConstraint([
    Sketcher.Constraint("Coincident", 0, 2, 1, 1),
    Sketcher.Constraint("Coincident", 1, 2, 2, 1),
    Sketcher.Constraint("Coincident", 2, 2, 3, 1),
    Sketcher.Constraint("Coincident", 3, 2, 0, 1),
    Sketcher.Constraint("Vertical", 0),
    Sketcher.Constraint("Horizontal", 1),
    Sketcher.Constraint("Vertical", 2),
    Sketcher.Constraint("Horizontal", 3),
    Sketcher.Constraint("DistanceX", 1, 2, 1, 1, Q("214 mm")),
    Sketcher.Constraint("DistanceY", 0, 1, 0, 2, Q("154 mm")),
    Sketcher.Constraint("DistanceY", 0, 2, -1, 1, Q("9.202 mm")),
    Sketcher.Constraint("DistanceX", 0, 2, -1, 1, Q("19.2873 mm")),
])
pocket7 = body.newObject("PartDesign::Pocket", "Pocket006")
pocket7.Profile = sketch8
pocket7.Length = 42

sketch9 = body.newObject("Sketcher::SketchObject", "Sketch008")
sketch9.AttachmentSupport = (doc.getObject("YZ_Plane"), [""])
sketch9.MapMode = "FlatFace"
sketch9.AttachmentOffset = App.Placement(Vector(0, 0, -11.2873), App.Rotation())
sketch9.addGeometry(Part.Circle(Vector(25, -146.2021, 0), Vector(0, 0, 1), 12.5), False)
sketch9.addConstraint([
    Sketcher.Constraint("Diameter", 0, Q("25 mm")),
    Sketcher.Constraint("DistanceX", -1, 1, 0, 3, Q("25 mm")),
    Sketcher.Constraint("DistanceY", 0, 3, -1, 1, Q("146.202 mm")),
])
pocket8 = body.newObject("PartDesign::Pocket", "Pocket007")
pocket8.Profile = sketch9
pocket8.Length = 20

doc.recompute()
